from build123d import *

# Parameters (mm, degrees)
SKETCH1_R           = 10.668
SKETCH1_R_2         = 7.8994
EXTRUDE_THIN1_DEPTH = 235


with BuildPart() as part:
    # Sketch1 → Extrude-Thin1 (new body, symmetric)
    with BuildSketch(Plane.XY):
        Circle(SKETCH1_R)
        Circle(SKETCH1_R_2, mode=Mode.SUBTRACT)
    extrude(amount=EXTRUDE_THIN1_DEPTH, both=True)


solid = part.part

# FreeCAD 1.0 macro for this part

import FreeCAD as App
import Part
import Sketcher
from FreeCAD import Vector
Q = App.Units.Quantity

doc = App.newDocument("Part")
params = doc.addObject("Spreadsheet::Sheet", "Params")
for row, (alias, value) in enumerate([
    ("sketch1_diameter", "0.84 in"),
    ("sketch1_diameter2", "0.622 in"),
    ("pad1_length", "470 mm"),
], start=1):
    params.set(f"A{row}", alias)
    params.set(f"B{row}", "=" + value)
    params.setAlias(f"B{row}", alias)

body = doc.addObject("PartDesign::Body", "Body")

# Sketch on XY plane
sketch1 = body.newObject("Sketcher::SketchObject", "Sketch")
sketch1.AttachmentSupport = (doc.getObject("XY_Plane"), [""])
sketch1.MapMode = "FlatFace"
sketch1.addGeometry([
    Part.Circle(Vector(0, 0, 0), Vector(0, 0, 1), 11),
    Part.Circle(Vector(0, 0, 0), Vector(0, 0, 1), 8),
], False)
sketch1.addConstraint([
    Sketcher.Constraint("Coincident", 0, 3, -1, 1),
    Sketcher.Constraint("Coincident", 1, 3, -1, 1),
    Sketcher.Constraint("Diameter", 0, Q("0.84 in")),
    Sketcher.Constraint("Diameter", 1, Q("0.622 in")),
])
sketch1.setExpression("Constraints[2]", "Params.sketch1_diameter")
sketch1.setExpression("Constraints[3]", "Params.sketch1_diameter2")
pad1 = body.newObject("PartDesign::Pad", "Pad")
pad1.Profile = sketch1
pad1.setExpression("Length", "Params.pad1_length")
pad1.Midplane = True

doc.recompute()
